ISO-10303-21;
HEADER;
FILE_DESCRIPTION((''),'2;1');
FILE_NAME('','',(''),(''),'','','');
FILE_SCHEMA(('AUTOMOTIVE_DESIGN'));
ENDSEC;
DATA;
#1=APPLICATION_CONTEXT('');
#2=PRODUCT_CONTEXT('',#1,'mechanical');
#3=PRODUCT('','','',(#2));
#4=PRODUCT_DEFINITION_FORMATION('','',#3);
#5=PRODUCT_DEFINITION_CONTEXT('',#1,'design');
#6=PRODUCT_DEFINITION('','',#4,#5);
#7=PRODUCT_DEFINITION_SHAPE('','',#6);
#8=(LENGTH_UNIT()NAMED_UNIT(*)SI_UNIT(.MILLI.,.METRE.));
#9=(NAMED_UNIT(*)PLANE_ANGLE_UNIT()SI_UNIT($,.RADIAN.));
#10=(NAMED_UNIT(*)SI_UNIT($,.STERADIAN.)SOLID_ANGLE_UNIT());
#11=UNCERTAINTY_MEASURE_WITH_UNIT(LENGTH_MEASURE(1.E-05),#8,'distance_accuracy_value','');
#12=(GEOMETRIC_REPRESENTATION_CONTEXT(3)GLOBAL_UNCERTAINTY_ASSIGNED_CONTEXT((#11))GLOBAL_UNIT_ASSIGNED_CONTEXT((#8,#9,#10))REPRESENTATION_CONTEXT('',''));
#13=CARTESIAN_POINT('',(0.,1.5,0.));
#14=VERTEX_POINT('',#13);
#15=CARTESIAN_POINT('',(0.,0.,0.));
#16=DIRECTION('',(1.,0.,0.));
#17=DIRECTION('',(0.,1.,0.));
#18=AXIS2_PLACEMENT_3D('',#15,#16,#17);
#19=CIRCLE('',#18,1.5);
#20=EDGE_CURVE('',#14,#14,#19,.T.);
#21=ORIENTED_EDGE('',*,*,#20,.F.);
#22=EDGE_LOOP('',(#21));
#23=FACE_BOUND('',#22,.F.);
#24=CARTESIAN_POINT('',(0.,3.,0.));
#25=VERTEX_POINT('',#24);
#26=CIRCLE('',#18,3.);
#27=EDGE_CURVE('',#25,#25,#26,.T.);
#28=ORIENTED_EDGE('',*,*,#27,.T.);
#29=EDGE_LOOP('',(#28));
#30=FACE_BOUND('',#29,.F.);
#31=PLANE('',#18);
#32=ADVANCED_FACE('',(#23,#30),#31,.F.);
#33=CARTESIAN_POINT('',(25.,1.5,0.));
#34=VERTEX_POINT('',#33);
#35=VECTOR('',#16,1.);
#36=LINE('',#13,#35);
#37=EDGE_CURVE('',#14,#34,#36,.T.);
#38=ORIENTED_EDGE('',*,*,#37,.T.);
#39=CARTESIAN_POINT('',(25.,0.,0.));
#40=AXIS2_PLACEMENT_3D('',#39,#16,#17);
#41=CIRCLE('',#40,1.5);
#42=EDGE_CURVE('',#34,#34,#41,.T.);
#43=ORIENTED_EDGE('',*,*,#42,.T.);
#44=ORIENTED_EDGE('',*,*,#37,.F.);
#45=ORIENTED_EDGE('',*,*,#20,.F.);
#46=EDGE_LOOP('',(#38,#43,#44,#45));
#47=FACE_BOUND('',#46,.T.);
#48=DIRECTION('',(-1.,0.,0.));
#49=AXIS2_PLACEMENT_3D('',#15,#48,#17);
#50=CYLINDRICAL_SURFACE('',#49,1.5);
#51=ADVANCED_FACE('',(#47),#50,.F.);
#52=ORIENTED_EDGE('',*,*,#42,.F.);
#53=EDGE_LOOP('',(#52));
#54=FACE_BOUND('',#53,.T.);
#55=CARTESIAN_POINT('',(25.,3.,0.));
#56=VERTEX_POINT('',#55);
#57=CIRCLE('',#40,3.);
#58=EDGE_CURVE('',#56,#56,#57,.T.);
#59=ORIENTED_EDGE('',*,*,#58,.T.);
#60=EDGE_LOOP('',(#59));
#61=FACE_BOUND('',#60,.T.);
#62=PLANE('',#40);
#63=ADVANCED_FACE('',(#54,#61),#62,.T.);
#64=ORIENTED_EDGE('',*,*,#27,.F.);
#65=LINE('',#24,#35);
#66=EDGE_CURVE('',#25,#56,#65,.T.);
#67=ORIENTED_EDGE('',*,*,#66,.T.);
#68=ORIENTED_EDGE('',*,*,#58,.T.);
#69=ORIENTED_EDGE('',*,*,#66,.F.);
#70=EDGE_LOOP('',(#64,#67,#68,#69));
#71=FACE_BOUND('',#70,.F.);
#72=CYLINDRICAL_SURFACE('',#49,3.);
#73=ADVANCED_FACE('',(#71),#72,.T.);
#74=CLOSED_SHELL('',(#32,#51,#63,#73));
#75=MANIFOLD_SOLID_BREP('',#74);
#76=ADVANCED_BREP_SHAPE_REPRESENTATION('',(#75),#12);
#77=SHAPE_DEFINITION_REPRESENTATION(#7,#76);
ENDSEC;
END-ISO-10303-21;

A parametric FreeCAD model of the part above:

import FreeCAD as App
import Part
import Sketcher
from FreeCAD import Vector

doc = App.newDocument("Part")
params = doc.addObject("Spreadsheet::Sheet", "Params")
for row, (alias, value) in enumerate([
    ("sketch1_diameter", "6 mm"),
    ("sketch1_diameter2", "3 mm"),
    ("pad1_length", "25 mm"),
], start=1):
    params.set(f"A{row}", alias)
    params.set(f"B{row}", "=" + value)
    params.setAlias(f"B{row}", alias)

body = doc.addObject("PartDesign::Body", "Body")

# Sketch on YZ plane
sketch1 = doc.addObject("Sketcher::SketchObject", "Sketch")
body.addObject(sketch1)
sketch1.AttachmentSupport = (doc.YZ_Plane, [""])
sketch1.MapMode = "FlatFace"
sketch1.addGeometry([
    Part.Circle(Vector(0, 0, 0), Vector(0, 0, 1), 3),
    Part.Circle(Vector(0, 0, 0), Vector(0, 0, 1), 1.5),
], False)
sketch1.addConstraint([
    Sketcher.Constraint("Coincident", 0, 3, -1, 1),
    Sketcher.Constraint("Coincident", 1, 3, -1, 1),
    Sketcher.Constraint("Diameter", 0, 6.0),
    Sketcher.Constraint("Diameter", 1, 3.0),
])
sketch1.setExpression("Constraints[2]", "Params.sketch1_diameter")
sketch1.setExpression("Constraints[3]", "Params.sketch1_diameter2")
pad1 = doc.addObject("PartDesign::Pad", "Pad")
body.addObject(pad1)
pad1.Profile = sketch1
pad1.setExpression("Length", "Params.pad1_length")

doc.recompute()
